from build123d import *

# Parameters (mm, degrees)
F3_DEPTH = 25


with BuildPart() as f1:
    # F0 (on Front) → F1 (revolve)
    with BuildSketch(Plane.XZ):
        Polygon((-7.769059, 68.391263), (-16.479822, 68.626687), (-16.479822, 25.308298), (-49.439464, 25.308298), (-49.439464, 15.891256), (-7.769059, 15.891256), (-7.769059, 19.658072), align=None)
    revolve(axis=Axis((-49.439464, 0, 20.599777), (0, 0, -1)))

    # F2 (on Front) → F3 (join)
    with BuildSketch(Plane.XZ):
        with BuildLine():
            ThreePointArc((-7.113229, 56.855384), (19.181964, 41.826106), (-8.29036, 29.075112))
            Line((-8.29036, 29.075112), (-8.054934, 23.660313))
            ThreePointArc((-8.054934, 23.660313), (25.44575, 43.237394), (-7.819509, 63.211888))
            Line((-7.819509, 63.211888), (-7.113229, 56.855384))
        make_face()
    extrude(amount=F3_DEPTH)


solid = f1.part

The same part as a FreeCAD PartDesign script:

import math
import FreeCAD as App
import Part
import Sketcher
Q = App.Units.Quantity

doc = App.newDocument("Part")
body = doc.addObject("PartDesign::Body", "Body")

# Sketch on XZ plane
sketch1 = doc.addObject("Sketcher::SketchObject", "Sketch")
body.addObject(sketch1)
sketch1.AttachmentSupport = (doc.XZ_Plane, [""])
sketch1.MapMode = "FlatFace"
sketch1.addGeometry([
    Part.LineSegment(App.Vector(-8, 68, 0), App.Vector(-16, 69, 0)),  # 0
    Part.LineSegment(App.Vector(-16, 69, 0), App.Vector(-16, 25, 0)),  # 1
    Part.LineSegment(App.Vector(-16, 25, 0), App.Vector(-49, 25, 0)),  # 2
    Part.LineSegment(App.Vector(-49, 25, 0), App.Vector(-49, 16, 0)),  # 3
    Part.LineSegment(App.Vector(-49, 16, 0), App.Vector(-8, 16, 0)),  # 4
    Part.LineSegment(App.Vector(-8, 16, 0), App.Vector(-8, 68, 0)),  # 5
], False)
sketch1.addGeometry(Part.LineSegment(App.Vector(-49, 69, 0), App.Vector(-49, 16, 0)), True)  # axis
sketch1.addConstraint([
    Sketcher.Constraint("Coincident", 0, 2, 1, 1),
    Sketcher.Constraint("Coincident", 1, 2, 2, 1),
    Sketcher.Constraint("Coincident", 2, 2, 3, 1),
    Sketcher.Constraint("Coincident", 3, 2, 4, 1),
    Sketcher.Constraint("Coincident", 4, 2, 5, 1),
    Sketcher.Constraint("Coincident", 5, 2, 0, 1),
    Sketcher.Constraint("Vertical", 1),
    Sketcher.Constraint("Horizontal", 2),
    Sketcher.Constraint("Vertical", 3),
    Sketcher.Constraint("Horizontal", 4),
    Sketcher.Constraint("Vertical", 5),
    Sketcher.Constraint("Vertical", 6),
    Sketcher.Constraint("Coincident", 6, 2, 3, 2),
    Sketcher.Constraint("Horizontal", 0, 2, 6, 1),
    Sketcher.Constraint("DistanceY", 1, 2, 1, 1, Q("43.318389 mm")),
    Sketcher.Constraint("DistanceY", 6, 2, 6, 1, Q("52.735431 mm")),
    Sketcher.Constraint("DistanceY", -1, 1, 1, 2, Q("25.308298 mm")),
    Sketcher.Constraint("DistanceX", 2, 2, 2, 1, Q("32.959642 mm")),
    Sketcher.Constraint("DistanceX", 4, 1, 4, 2, Q("41.670405 mm")),
    Sketcher.Constraint("DistanceY", 5, 1, 5, 2, Q("52.500007 mm")),
    Sketcher.Constraint("DistanceX", 0, 2, -1, 1, Q("16.479822 mm")),
])
revolution = doc.addObject("PartDesign::Revolution", "Revolution")
body.addObject(revolution)
revolution.Profile = sketch1
revolution.ReferenceAxis = (sketch1, ["Axis0"])
revolution.Angle = 360

# Sketch on XZ plane
sketch2 = doc.addObject("Sketcher::SketchObject", "Sketch001")
body.addObject(sketch2)
sketch2.AttachmentSupport = (doc.XZ_Plane, [""])
sketch2.MapMode = "FlatFace"
sketch2.addGeometry([
    Part.ArcOfCircle(Part.Circle(App.Vector(2, 43, 0), App.Vector(0, 0, 1), 17), math.radians(-128), math.radians(123)),
    Part.LineSegment(App.Vector(-8, 29, 0), App.Vector(-8, 24, 0)),
    Part.ArcOfCircle(Part.Circle(App.Vector(3, 43, 0), App.Vector(0, 0, 1), 23), math.radians(-119), math.radians(118)),
    Part.LineSegment(App.Vector(-8, 63, 0), App.Vector(-7, 57, 0)),
], False)
sketch2.addConstraint([
    Sketcher.Constraint("Coincident", 0, 1, 1, 1),
    Sketcher.Constraint("Coincident", 1, 2, 2, 1),
    Sketcher.Constraint("Coincident", 2, 2, 3, 1),
    Sketcher.Constraint("Coincident", 3, 2, 0, 2),
    Sketcher.Constraint("Radius", 2, Q("22.549389 mm")),
    Sketcher.Constraint("Radius", 0, Q("17.045496 mm")),
    Sketcher.Constraint("DistanceY", 0, 1, 2, 3, Q("14.296501 mm")),
    Sketcher.Constraint("DistanceY", 1, 2, 0, 1, Q("5.414799 mm")),
    Sketcher.Constraint("Distance", 3, Q("6.395622 mm")),
    Sketcher.Constraint("DistanceX", -1, 1, 0, 3, Q("2.151749 mm")),
    Sketcher.Constraint("DistanceX", -1, 1, 2, 3, Q("2.89676 mm")),
    Sketcher.Constraint("DistanceX", 0, 1, -1, 1, Q("8.29036 mm")),
    Sketcher.Constraint("DistanceY", -1, 1, 0, 1, Q("29.075112 mm")),
    Sketcher.Constraint("DistanceX", 2, 2, -1, 1, Q("7.819509 mm")),
])
pad1 = doc.addObject("PartDesign::Pad", "Pad")
body.addObject(pad1)
pad1.Profile = sketch2
pad1.Length = 25

doc.recompute()
